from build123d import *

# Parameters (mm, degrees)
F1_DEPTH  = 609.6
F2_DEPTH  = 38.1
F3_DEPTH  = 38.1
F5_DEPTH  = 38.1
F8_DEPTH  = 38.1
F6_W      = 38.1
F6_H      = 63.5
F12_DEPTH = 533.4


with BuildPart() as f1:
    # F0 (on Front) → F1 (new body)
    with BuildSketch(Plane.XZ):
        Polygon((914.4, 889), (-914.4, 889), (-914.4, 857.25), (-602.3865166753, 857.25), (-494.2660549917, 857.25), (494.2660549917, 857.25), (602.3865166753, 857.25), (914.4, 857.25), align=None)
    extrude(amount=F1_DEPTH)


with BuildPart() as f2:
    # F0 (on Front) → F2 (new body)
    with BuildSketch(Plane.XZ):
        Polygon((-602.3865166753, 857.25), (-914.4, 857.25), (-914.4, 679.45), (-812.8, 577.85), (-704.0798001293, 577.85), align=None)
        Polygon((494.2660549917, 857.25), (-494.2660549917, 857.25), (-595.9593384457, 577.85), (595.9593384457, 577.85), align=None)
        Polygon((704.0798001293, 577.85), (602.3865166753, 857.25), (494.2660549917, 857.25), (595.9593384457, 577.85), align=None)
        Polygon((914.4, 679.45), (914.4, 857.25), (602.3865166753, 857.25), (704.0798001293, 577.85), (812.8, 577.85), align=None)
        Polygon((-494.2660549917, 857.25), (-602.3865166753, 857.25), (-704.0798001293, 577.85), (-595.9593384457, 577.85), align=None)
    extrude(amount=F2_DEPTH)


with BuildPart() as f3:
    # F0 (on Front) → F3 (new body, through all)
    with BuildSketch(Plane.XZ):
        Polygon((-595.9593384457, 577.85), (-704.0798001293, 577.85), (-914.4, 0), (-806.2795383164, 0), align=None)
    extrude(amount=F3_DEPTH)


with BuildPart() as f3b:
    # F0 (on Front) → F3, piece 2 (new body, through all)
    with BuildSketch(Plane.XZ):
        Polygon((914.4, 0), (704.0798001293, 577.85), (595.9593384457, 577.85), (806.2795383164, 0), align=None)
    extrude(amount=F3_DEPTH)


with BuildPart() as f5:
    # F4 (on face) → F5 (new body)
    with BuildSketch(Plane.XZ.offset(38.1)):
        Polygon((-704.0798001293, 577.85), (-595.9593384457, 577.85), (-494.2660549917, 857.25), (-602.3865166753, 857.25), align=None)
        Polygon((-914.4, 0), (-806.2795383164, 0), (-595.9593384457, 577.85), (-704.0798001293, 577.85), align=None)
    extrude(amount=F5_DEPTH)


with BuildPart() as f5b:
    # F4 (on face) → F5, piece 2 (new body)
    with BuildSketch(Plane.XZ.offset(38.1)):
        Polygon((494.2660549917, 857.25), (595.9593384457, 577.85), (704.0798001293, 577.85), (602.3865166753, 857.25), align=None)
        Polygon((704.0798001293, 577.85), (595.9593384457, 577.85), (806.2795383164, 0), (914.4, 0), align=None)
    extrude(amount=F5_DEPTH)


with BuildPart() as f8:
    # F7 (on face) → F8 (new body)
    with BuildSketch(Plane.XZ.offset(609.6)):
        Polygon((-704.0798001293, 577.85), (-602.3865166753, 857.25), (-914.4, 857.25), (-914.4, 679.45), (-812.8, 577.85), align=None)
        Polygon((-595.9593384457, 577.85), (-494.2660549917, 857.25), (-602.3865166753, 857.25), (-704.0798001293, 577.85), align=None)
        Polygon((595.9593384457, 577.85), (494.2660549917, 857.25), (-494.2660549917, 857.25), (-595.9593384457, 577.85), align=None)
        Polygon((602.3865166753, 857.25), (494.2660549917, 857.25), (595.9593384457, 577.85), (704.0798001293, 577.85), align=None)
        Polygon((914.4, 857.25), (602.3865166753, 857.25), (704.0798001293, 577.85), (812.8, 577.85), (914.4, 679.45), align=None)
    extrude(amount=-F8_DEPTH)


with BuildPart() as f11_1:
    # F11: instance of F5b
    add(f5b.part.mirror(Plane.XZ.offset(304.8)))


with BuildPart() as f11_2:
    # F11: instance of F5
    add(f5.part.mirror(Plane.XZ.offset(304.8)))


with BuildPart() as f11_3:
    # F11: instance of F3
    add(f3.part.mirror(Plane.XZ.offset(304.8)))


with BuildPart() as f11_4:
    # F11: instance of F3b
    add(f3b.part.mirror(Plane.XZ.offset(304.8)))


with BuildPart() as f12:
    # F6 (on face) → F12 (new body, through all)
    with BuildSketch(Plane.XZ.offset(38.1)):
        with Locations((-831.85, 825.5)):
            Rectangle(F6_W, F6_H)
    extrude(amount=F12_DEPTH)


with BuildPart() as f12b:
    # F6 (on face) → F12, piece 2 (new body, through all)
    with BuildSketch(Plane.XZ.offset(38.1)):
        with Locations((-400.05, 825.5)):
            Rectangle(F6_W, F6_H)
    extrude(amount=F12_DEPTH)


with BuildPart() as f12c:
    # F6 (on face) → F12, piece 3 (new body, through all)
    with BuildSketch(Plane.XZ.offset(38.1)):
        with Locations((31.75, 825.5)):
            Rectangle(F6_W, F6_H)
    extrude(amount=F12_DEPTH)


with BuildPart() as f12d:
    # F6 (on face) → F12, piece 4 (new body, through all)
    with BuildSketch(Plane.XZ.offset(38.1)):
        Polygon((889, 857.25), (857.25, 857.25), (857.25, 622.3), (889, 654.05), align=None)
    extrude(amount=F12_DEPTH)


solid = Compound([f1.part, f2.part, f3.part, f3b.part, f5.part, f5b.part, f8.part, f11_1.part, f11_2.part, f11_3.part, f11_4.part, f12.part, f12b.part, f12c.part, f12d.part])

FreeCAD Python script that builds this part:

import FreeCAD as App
import Part
import Sketcher
Q = App.Units.Quantity

doc = App.newDocument("Part")
body = doc.addObject("PartDesign::Body", "Body")

sketch1 = body.newObject("Sketcher::SketchObject", "Sketch")
sketch1.AttachmentSupport = (doc.getObject("XZ_Plane"), [""])
sketch1.MapMode = "FlatFace"
sketch1.addGeometry(Part.LineSegment(App.Vector(914, 889, 0), App.Vector(-914, 889, 0)), False)
sketch1.addGeometry(Part.LineSegment(App.Vector(-914, 889, 0), App.Vector(-914, 857, 0)), False)
sketch1.addGeometry(Part.LineSegment(App.Vector(-914, 857, 0), App.Vector(914, 857, 0)), False)
sketch1.addGeometry(Part.LineSegment(App.Vector(914, 857, 0), App.Vector(914, 889, 0)), False)
sketch1.addConstraint(Sketcher.Constraint("Coincident", 0, 2, 1, 1))
sketch1.addConstraint(Sketcher.Constraint("Coincident", 1, 2, 2, 1))
sketch1.addConstraint(Sketcher.Constraint("Coincident", 2, 2, 3, 1))
sketch1.addConstraint(Sketcher.Constraint("Coincident", 3, 2, 0, 1))
sketch1.addConstraint(Sketcher.Constraint("Horizontal", 0))
sketch1.addConstraint(Sketcher.Constraint("Vertical", 1))
sketch1.addConstraint(Sketcher.Constraint("Horizontal", 2))
sketch1.addConstraint(Sketcher.Constraint("Vertical", 3))
sketch1.addConstraint(Sketcher.Constraint("DistanceX", 0, 2, 0, 1, Q("72 in")))
sketch1.addConstraint(Sketcher.Constraint("DistanceX", 0, 2, -1, 1, Q("36 in")))
sketch1.addConstraint(Sketcher.Constraint("DistanceY", -1, 1, 0, 2, Q("35 in")))
sketch1.addConstraint(Sketcher.Constraint("DistanceY", 1, 2, 1, 1, Q("1.25 in")))
pad1 = body.newObject("PartDesign::Pad", "Pad")
pad1.Profile = sketch1
pad1.Length = Q("24 in")
body2 = doc.addObject("PartDesign::Body", "Body001")

sketch2 = body2.newObject("Sketcher::SketchObject", "Sketch001")
sketch2.AttachmentSupport = (doc.getObject("XZ_Plane001"), [""])
sketch2.MapMode = "FlatFace"
sketch2.addGeometry(Part.LineSegment(App.Vector(-914, 857, 0), App.Vector(-914, 679, 0)), False)
sketch2.addGeometry(Part.LineSegment(App.Vector(-914, 679, 0), App.Vector(-813, 578, 0)), False)
sketch2.addGeometry(Part.LineSegment(App.Vector(-813, 578, 0), App.Vector(813, 578, 0)), False)
sketch2.addGeometry(Part.LineSegment(App.Vector(813, 578, 0), App.Vector(914, 679, 0)), False)
sketch2.addGeometry(Part.LineSegment(App.Vector(914, 679, 0), App.Vector(914, 857, 0)), False)
sketch2.addGeometry(Part.LineSegment(App.Vector(914, 857, 0), App.Vector(-914, 857, 0)), False)
sketch2.addConstraint(Sketcher.Constraint("Coincident", 0, 2, 1, 1))
sketch2.addConstraint(Sketcher.Constraint("Coincident", 1, 2, 2, 1))
sketch2.addConstraint(Sketcher.Constraint("Coincident", 2, 2, 3, 1))
sketch2.addConstraint(Sketcher.Constraint("Coincident", 3, 2, 4, 1))
sketch2.addConstraint(Sketcher.Constraint("Coincident", 4, 2, 5, 1))
sketch2.addConstraint(Sketcher.Constraint("Coincident", 5, 2, 0, 1))
sketch2.addConstraint(Sketcher.Constraint("Vertical", 0))
sketch2.addConstraint(Sketcher.Constraint("Horizontal", 2))
sketch2.addConstraint(Sketcher.Constraint("Vertical", 4))
sketch2.addConstraint(Sketcher.Constraint("Horizontal", 5))
sketch2.addConstraint(Sketcher.Constraint("Symmetric", 0, 2, 3, 2, -2))
sketch2.addConstraint(Sketcher.Constraint("Perpendicular", 1, 3))
sketch2.addConstraint(Sketcher.Constraint("Equal", 1, 3))
sketch2.addConstraint(Sketcher.Constraint("DistanceX", 2, 1, 2, 2, Q("64 in")))
sketch2.addConstraint(Sketcher.Constraint("DistanceX", 5, 2, 5, 1, Q("72 in")))
sketch2.addConstraint(Sketcher.Constraint("DistanceY", 0, 2, 0, 1, Q("7 in")))
sketch2.addConstraint(Sketcher.Constraint("DistanceY", -1, 1, 0, 2, Q("26.75 in")))
pad2 = body2.newObject("PartDesign::Pad", "Pad001")
pad2.Profile = sketch2
pad2.Length = Q("1.5 in")
body3 = doc.addObject("PartDesign::Body", "Body002")

sketch3 = body3.newObject("Sketcher::SketchObject", "Sketch002")
sketch3.AttachmentSupport = (doc.getObject("XZ_Plane002"), [""])
sketch3.MapMode = "FlatFace"
sketch3.addGeometry(Part.LineSegment(App.Vector(-596, 578, 0), App.Vector(-704, 578, 0)), False)
sketch3.addGeometry(Part.LineSegment(App.Vector(-704, 578, 0), App.Vector(-914, 0, 0)), False)
sketch3.addGeometry(Part.LineSegment(App.Vector(-914, 0, 0), App.Vector(-806, 0, 0)), False)
sketch3.addGeometry(Part.LineSegment(App.Vector(-806, 0, 0), App.Vector(-596, 578, 0)), False)
sketch3.addConstraint(Sketcher.Constraint("Coincident", 0, 2, 1, 1))
sketch3.addConstraint(Sketcher.Constraint("Coincident", 1, 2, 2, 1))
sketch3.addConstraint(Sketcher.Constraint("Coincident", 2, 2, 3, 1))
sketch3.addConstraint(Sketcher.Constraint("Coincident", 3, 2, 0, 1))
sketch3.addConstraint(Sketcher.Constraint("Horizontal", 0))
sketch3.addConstraint(Sketcher.Constraint("Horizontal", 2))
sketch3.addConstraint(Sketcher.Constraint("PointOnObject", 1, 2, -1))
sketch3.addConstraint(Sketcher.Constraint("Parallel", 1, 3))
sketch3.addConstraint(Sketcher.Constraint("DistanceX", 1, 2, -1, 1, Q("36 in")))
sketch3.addConstraint(Sketcher.Constraint("Angle", 1, Q("-110 deg")))
sketch3.addConstraint(Sketcher.Constraint("DistanceY", -1, 1, 0, 2, Q("22.75 in")))
sketch3.addConstraint(Sketcher.Constraint("DistanceX", 0, 2, 0, 1, 108.120462))
pad3 = body3.newObject("PartDesign::Pad", "Pad002")
pad3.Profile = sketch3
pad3.Length = Q("1.5 in")
body4 = doc.addObject("PartDesign::Body", "Body003")

sketch4 = body4.newObject("Sketcher::SketchObject", "Sketch003")
sketch4.AttachmentSupport = (doc.getObject("XZ_Plane003"), [""])
sketch4.MapMode = "FlatFace"
sketch4.addGeometry(Part.LineSegment(App.Vector(914, 0, 0), App.Vector(704, 578, 0)), False)
sketch4.addGeometry(Part.LineSegment(App.Vector(704, 578, 0), App.Vector(596, 578, 0)), False)
sketch4.addGeometry(Part.LineSegment(App.Vector(596, 578, 0), App.Vector(806, 0, 0)), False)
sketch4.addGeometry(Part.LineSegment(App.Vector(806, 0, 0), App.Vector(914, 0, 0)), False)
sketch4.addConstraint(Sketcher.Constraint("Coincident", 0, 2, 1, 1))
sketch4.addConstraint(Sketcher.Constraint("Coincident", 1, 2, 2, 1))
sketch4.addConstraint(Sketcher.Constraint("Coincident", 2, 2, 3, 1))
sketch4.addConstraint(Sketcher.Constraint("Coincident", 3, 2, 0, 1))
sketch4.addConstraint(Sketcher.Constraint("Horizontal", 1))
sketch4.addConstraint(Sketcher.Constraint("Horizontal", 3))
sketch4.addConstraint(Sketcher.Constraint("PointOnObject", 2, 2, -1))
sketch4.addConstraint(Sketcher.Constraint("Parallel", 0, 2))
sketch4.addConstraint(Sketcher.Constraint("DistanceX", -1, 1, 3, 2, Q("36 in")))
sketch4.addConstraint(Sketcher.Constraint("Angle", 0, Q("110 deg")))
sketch4.addConstraint(Sketcher.Constraint("DistanceY", -1, 1, 0, 2, Q("22.75 in")))
sketch4.addConstraint(Sketcher.Constraint("DistanceX", 1, 2, 1, 1, 108.120462))
pad4 = body4.newObject("PartDesign::Pad", "Pad003")
pad4.Profile = sketch4
pad4.Length = Q("1.5 in")
body5 = doc.addObject("PartDesign::Body", "Body004")

sketch5 = body5.newObject("Sketcher::SketchObject", "Sketch004")
sketch5.AttachmentSupport = (doc.getObject("XZ_Plane004"), [""])
sketch5.MapMode = "FlatFace"
sketch5.AttachmentOffset = App.Placement(App.Vector(0, 0, 1.5 * 25.4), App.Rotation())
sketch5.addGeometry(Part.LineSegment(App.Vector(-494, 857, 0), App.Vector(-602, 857, 0)), False)
sketch5.addGeometry(Part.LineSegment(App.Vector(-602, 857, 0), App.Vector(-914, 0, 0)), False)
sketch5.addGeometry(Part.LineSegment(App.Vector(-914, 0, 0), App.Vector(-806, 0, 0)), False)
sketch5.addGeometry(Part.LineSegment(App.Vector(-806, 0, 0), App.Vector(-494, 857, 0)), False)
sketch5.addConstraint(Sketcher.Constraint("Coincident", 0, 2, 1, 1))
sketch5.addConstraint(Sketcher.Constraint("Coincident", 1, 2, 2, 1))
sketch5.addConstraint(Sketcher.Constraint("Coincident", 2, 2, 3, 1))
sketch5.addConstraint(Sketcher.Constraint("Coincident", 3, 2, 0, 1))
sketch5.addConstraint(Sketcher.Constraint("Horizontal", 0))
sketch5.addConstraint(Sketcher.Constraint("Horizontal", 2))
sketch5.addConstraint(Sketcher.Constraint("PointOnObject", 1, 2, -1))
sketch5.addConstraint(Sketcher.Constraint("Parallel", 1, 3))
sketch5.addConstraint(Sketcher.Constraint("DistanceX", 1, 2, -1, 1, Q("36 in")))
sketch5.addConstraint(Sketcher.Constraint("Angle", 1, Q("-110 deg")))
sketch5.addConstraint(Sketcher.Constraint("DistanceY", -1, 1, 0, 2, Q("33.75 in")))
sketch5.addConstraint(Sketcher.Constraint("DistanceX", 0, 2, 0, 1, 108.120462))
pad5 = body5.newObject("PartDesign::Pad", "Pad004")
pad5.Profile = sketch5
pad5.Length = Q("1.5 in")
body6 = doc.addObject("PartDesign::Body", "Body005")

sketch6 = body6.newObject("Sketcher::SketchObject", "Sketch005")
sketch6.AttachmentSupport = (doc.getObject("XZ_Plane005"), [""])
sketch6.MapMode = "FlatFace"
sketch6.AttachmentOffset = App.Placement(App.Vector(0, 0, 1.5 * 25.4), App.Rotation())
sketch6.addGeometry(Part.LineSegment(App.Vector(494, 857, 0), App.Vector(806, 0, 0)), False)
sketch6.addGeometry(Part.LineSegment(App.Vector(806, 0, 0), App.Vector(914, 0, 0)), False)
sketch6.addGeometry(Part.LineSegment(App.Vector(914, 0, 0), App.Vector(602, 857, 0)), False)
sketch6.addGeometry(Part.LineSegment(App.Vector(602, 857, 0), App.Vector(494, 857, 0)), False)
sketch6.addConstraint(Sketcher.Constraint("Coincident", 0, 2, 1, 1))
sketch6.addConstraint(Sketcher.Constraint("Coincident", 1, 2, 2, 1))
sketch6.addConstraint(Sketcher.Constraint("Coincident", 2, 2, 3, 1))
sketch6.addConstraint(Sketcher.Constraint("Coincident", 3, 2, 0, 1))
sketch6.addConstraint(Sketcher.Constraint("Horizontal", 1))
sketch6.addConstraint(Sketcher.Constraint("Horizontal", 3))
sketch6.addConstraint(Sketcher.Constraint("PointOnObject", 0, 2, -1))
sketch6.addConstraint(Sketcher.Constraint("Parallel", 0, 2))
sketch6.addConstraint(Sketcher.Constraint("DistanceX", -1, 1, 1, 2, Q("36 in")))
sketch6.addConstraint(Sketcher.Constraint("Angle", 0, Q("-70 deg")))
sketch6.addConstraint(Sketcher.Constraint("DistanceY", -1, 1, 2, 2, Q("33.75 in")))
sketch6.addConstraint(Sketcher.Constraint("DistanceX", 1, 1, 1, 2, 108.120462))
pad6 = body6.newObject("PartDesign::Pad", "Pad005")
pad6.Profile = sketch6
pad6.Length = Q("1.5 in")
body7 = doc.addObject("PartDesign::Body", "Body006")

sketch7 = body7.newObject("Sketcher::SketchObject", "Sketch006")
sketch7.AttachmentSupport = (doc.getObject("XZ_Plane006"), [""])
sketch7.MapMode = "FlatFace"
sketch7.AttachmentOffset = App.Placement(App.Vector(0, 0, 24 * 25.4), App.Rotation())
sketch7.addGeometry(Part.LineSegment(App.Vector(-914, 857, 0), App.Vector(-914, 679, 0)), False)
sketch7.addGeometry(Part.LineSegment(App.Vector(-914, 679, 0), App.Vector(-813, 578, 0)), False)
sketch7.addGeometry(Part.LineSegment(App.Vector(-813, 578, 0), App.Vector(813, 578, 0)), False)
sketch7.addGeometry(Part.LineSegment(App.Vector(813, 578, 0), App.Vector(914, 679, 0)), False)
sketch7.addGeometry(Part.LineSegment(App.Vector(914, 679, 0), App.Vector(914, 857, 0)), False)
sketch7.addGeometry(Part.LineSegment(App.Vector(914, 857, 0), App.Vector(-914, 857, 0)), False)
sketch7.addConstraint(Sketcher.Constraint("Coincident", 0, 2, 1, 1))
sketch7.addConstraint(Sketcher.Constraint("Coincident", 1, 2, 2, 1))
sketch7.addConstraint(Sketcher.Constraint("Coincident", 2, 2, 3, 1))
sketch7.addConstraint(Sketcher.Constraint("Coincident", 3, 2, 4, 1))
sketch7.addConstraint(Sketcher.Constraint("Coincident", 4, 2, 5, 1))
sketch7.addConstraint(Sketcher.Constraint("Coincident", 5, 2, 0, 1))
sketch7.addConstraint(Sketcher.Constraint("Vertical", 0))
sketch7.addConstraint(Sketcher.Constraint("Horizontal", 2))
sketch7.addConstraint(Sketcher.Constraint("Vertical", 4))
sketch7.addConstraint(Sketcher.Constraint("Horizontal", 5))
sketch7.addConstraint(Sketcher.Constraint("Symmetric", 0, 2, 3, 2, -2))
sketch7.addConstraint(Sketcher.Constraint("Perpendicular", 1, 3))
sketch7.addConstraint(Sketcher.Constraint("Equal", 1, 3))
sketch7.addConstraint(Sketcher.Constraint("DistanceX", 2, 1, 2, 2, Q("64 in")))
sketch7.addConstraint(Sketcher.Constraint("DistanceX", 5, 2, 5, 1, Q("72 in")))
sketch7.addConstraint(Sketcher.Constraint("DistanceY", 0, 2, 0, 1, Q("7 in")))
sketch7.addConstraint(Sketcher.Constraint("DistanceY", -1, 1, 0, 2, Q("26.75 in")))
pad7 = body7.newObject("PartDesign::Pad", "Pad006")
pad7.Profile = sketch7
pad7.Length = Q("1.5 in")
pad7.Reversed = True
body8 = doc.addObject("PartDesign::Body", "Body007")
doc.recompute()

mirroring = doc.addObject("Part::Mirroring", "Mirroring")
mirroring.Source = body6
mirroring.Base = App.Vector(0, -304.8, 0)
mirroring.Normal = App.Vector(0, -1, 0)
body8.BaseFeature = mirroring
doc.recompute()
body9 = doc.addObject("PartDesign::Body", "Body008")
doc.recompute()

mirroring2 = doc.addObject("Part::Mirroring", "Mirroring001")
mirroring2.Source = body5
mirroring2.Base = App.Vector(0, -304.8, 0)
mirroring2.Normal = App.Vector(0, -1, 0)
body9.BaseFeature = mirroring2
doc.recompute()
body10 = doc.addObject("PartDesign::Body", "Body009")
doc.recompute()

mirroring3 = doc.addObject("Part::Mirroring", "Mirroring002")
mirroring3.Source = body3
mirroring3.Base = App.Vector(0, -304.8, 0)
mirroring3.Normal = App.Vector(0, -1, 0)
body10.BaseFeature = mirroring3
doc.recompute()
body11 = doc.addObject("PartDesign::Body", "Body010")
doc.recompute()

mirroring4 = doc.addObject("Part::Mirroring", "Mirroring003")
mirroring4.Source = body4
mirroring4.Base = App.Vector(0, -304.8, 0)
mirroring4.Normal = App.Vector(0, -1, 0)
body11.BaseFeature = mirroring4
doc.recompute()
body12 = doc.addObject("PartDesign::Body", "Body011")

sketch8 = body12.newObject("Sketcher::SketchObject", "Sketch007")
sketch8.AttachmentSupport = (doc.getObject("XZ_Plane011"), [""])
sketch8.MapMode = "FlatFace"
sketch8.AttachmentOffset = App.Placement(App.Vector(0, 0, 1.5 * 25.4), App.Rotation())
sketch8.addGeometry(Part.LineSegment(App.Vector(-851, 857, 0), App.Vector(-851, 794, 0)), False)
sketch8.addGeometry(Part.LineSegment(App.Vector(-851, 794, 0), App.Vector(-813, 794, 0)), False)
sketch8.addGeometry(Part.LineSegment(App.Vector(-813, 794, 0), App.Vector(-813, 857, 0)), False)
sketch8.addGeometry(Part.LineSegment(App.Vector(-813, 857, 0), App.Vector(-851, 857, 0)), False)
sketch8.addConstraint(Sketcher.Constraint("Coincident", 0, 2, 1, 1))
sketch8.addConstraint(Sketcher.Constraint("Coincident", 1, 2, 2, 1))
sketch8.addConstraint(Sketcher.Constraint("Coincident", 2, 2, 3, 1))
sketch8.addConstraint(Sketcher.Constraint("Coincident", 3, 2, 0, 1))
sketch8.addConstraint(Sketcher.Constraint("Vertical", 0))
sketch8.addConstraint(Sketcher.Constraint("Horizontal", 1))
sketch8.addConstraint(Sketcher.Constraint("Vertical", 2))
sketch8.addConstraint(Sketcher.Constraint("Horizontal", 3))
sketch8.addConstraint(Sketcher.Constraint("DistanceX", 1, 1, 1, 2, Q("1.5 in")))
sketch8.addConstraint(Sketcher.Constraint("DistanceY", 0, 2, 0, 1, Q("2.5 in")))
sketch8.addConstraint(Sketcher.Constraint("DistanceX", 1, 2, -1, 1, Q("32 in")))
sketch8.addConstraint(Sketcher.Constraint("DistanceY", -1, 1, 0, 2, Q("31.25 in")))
pad8 = body12.newObject("PartDesign::Pad", "Pad007")
pad8.Profile = sketch8
pad8.Length = Q("21 in")
body13 = doc.addObject("PartDesign::Body", "Body012")

sketch9 = body13.newObject("Sketcher::SketchObject", "Sketch008")
sketch9.AttachmentSupport = (doc.getObject("XZ_Plane012"), [""])
sketch9.MapMode = "FlatFace"
sketch9.AttachmentOffset = App.Placement(App.Vector(0, 0, 1.5 * 25.4), App.Rotation())
sketch9.addGeometry(Part.LineSegment(App.Vector(-419, 857, 0), App.Vector(-419, 794, 0)), False)
sketch9.addGeometry(Part.LineSegment(App.Vector(-419, 794, 0), App.Vector(-381, 794, 0)), False)
sketch9.addGeometry(Part.LineSegment(App.Vector(-381, 794, 0), App.Vector(-381, 857, 0)), False)
sketch9.addGeometry(Part.LineSegment(App.Vector(-381, 857, 0), App.Vector(-419, 857, 0)), False)
sketch9.addConstraint(Sketcher.Constraint("Coincident", 0, 2, 1, 1))
sketch9.addConstraint(Sketcher.Constraint("Coincident", 1, 2, 2, 1))
sketch9.addConstraint(Sketcher.Constraint("Coincident", 2, 2, 3, 1))
sketch9.addConstraint(Sketcher.Constraint("Coincident", 3, 2, 0, 1))
sketch9.addConstraint(Sketcher.Constraint("Vertical", 0))
sketch9.addConstraint(Sketcher.Constraint("Horizontal", 1))
sketch9.addConstraint(Sketcher.Constraint("Vertical", 2))
sketch9.addConstraint(Sketcher.Constraint("Horizontal", 3))
sketch9.addConstraint(Sketcher.Constraint("DistanceX", 1, 1, 1, 2, Q("1.5 in")))
sketch9.addConstraint(Sketcher.Constraint("DistanceY", 0, 2, 0, 1, Q("2.5 in")))
sketch9.addConstraint(Sketcher.Constraint("DistanceX", 1, 2, -1, 1, Q("15 in")))
sketch9.addConstraint(Sketcher.Constraint("DistanceY", -1, 1, 0, 2, Q("31.25 in")))
pad9 = body13.newObject("PartDesign::Pad", "Pad008")
pad9.Profile = sketch9
pad9.Length = Q("21 in")
body14 = doc.addObject("PartDesign::Body", "Body013")

sketch10 = body14.newObject("Sketcher::SketchObject", "Sketch009")
sketch10.AttachmentSupport = (doc.getObject("XZ_Plane013"), [""])
sketch10.MapMode = "FlatFace"
sketch10.AttachmentOffset = App.Placement(App.Vector(0, 0, 1.5 * 25.4), App.Rotation())
sketch10.addGeometry(Part.LineSegment(App.Vector(13, 857, 0), App.Vector(13, 794, 0)), False)
sketch10.addGeometry(Part.LineSegment(App.Vector(13, 794, 0), App.Vector(51, 794, 0)), False)
sketch10.addGeometry(Part.LineSegment(App.Vector(51, 794, 0), App.Vector(51, 857, 0)), False)
sketch10.addGeometry(Part.LineSegment(App.Vector(51, 857, 0), App.Vector(13, 857, 0)), False)
sketch10.addConstraint(Sketcher.Constraint("Coincident", 0, 2, 1, 1))
sketch10.addConstraint(Sketcher.Constraint("Coincident", 1, 2, 2, 1))
sketch10.addConstraint(Sketcher.Constraint("Coincident", 2, 2, 3, 1))
sketch10.addConstraint(Sketcher.Constraint("Coincident", 3, 2, 0, 1))
sketch10.addConstraint(Sketcher.Constraint("Vertical", 0))
sketch10.addConstraint(Sketcher.Constraint("Horizontal", 1))
sketch10.addConstraint(Sketcher.Constraint("Vertical", 2))
sketch10.addConstraint(Sketcher.Constraint("Horizontal", 3))
sketch10.addConstraint(Sketcher.Constraint("DistanceX", 1, 1, 1, 2, Q("1.5 in")))
sketch10.addConstraint(Sketcher.Constraint("DistanceY", 0, 2, 0, 1, Q("2.5 in")))
sketch10.addConstraint(Sketcher.Constraint("DistanceX", -1, 1, 1, 2, Q("2 in")))
sketch10.addConstraint(Sketcher.Constraint("DistanceY", -1, 1, 0, 2, Q("31.25 in")))
pad10 = body14.newObject("PartDesign::Pad", "Pad009")
pad10.Profile = sketch10
pad10.Length = Q("21 in")
body15 = doc.addObject("PartDesign::Body", "Body014")

sketch11 = body15.newObject("Sketcher::SketchObject", "Sketch010")
sketch11.AttachmentSupport = (doc.getObject("XZ_Plane014"), [""])
sketch11.MapMode = "FlatFace"
sketch11.AttachmentOffset = App.Placement(App.Vector(0, 0, 1.5 * 25.4), App.Rotation())
sketch11.addGeometry(Part.LineSegment(App.Vector(889, 857, 0), App.Vector(857, 857, 0)), False)
sketch11.addGeometry(Part.LineSegment(App.Vector(857, 857, 0), App.Vector(857, 622, 0)), False)
sketch11.addGeometry(Part.LineSegment(App.Vector(857, 622, 0), App.Vector(889, 654, 0)), False)
sketch11.addGeometry(Part.LineSegment(App.Vector(889, 654, 0), App.Vector(889, 857, 0)), False)
sketch11.addConstraint(Sketcher.Constraint("Coincident", 0, 2, 1, 1))
sketch11.addConstraint(Sketcher.Constraint("Coincident", 1, 2, 2, 1))
sketch11.addConstraint(Sketcher.Constraint("Coincident", 2, 2, 3, 1))
sketch11.addConstraint(Sketcher.Constraint("Coincident", 3, 2, 0, 1))
sketch11.addConstraint(Sketcher.Constraint("Horizontal", 0))
sketch11.addConstraint(Sketcher.Constraint("Vertical", 1))
sketch11.addConstraint(Sketcher.Constraint("Vertical", 3))
sketch11.addConstraint(Sketcher.Constraint("DistanceY", 3, 1, 3, 2, Q("8 in")))
sketch11.addConstraint(Sketcher.Constraint("DistanceX", -1, 1, 2, 2, Q("35 in")))
sketch11.addConstraint(Sketcher.Constraint("Angle", 2, Q("45 deg")))
sketch11.addConstraint(Sketcher.Constraint("DistanceX", 0, 2, 0, 1, Q("1.25 in")))
sketch11.addConstraint(Sketcher.Constraint("DistanceY", -1, 1, 1, 2, Q("24.5 in")))
pad11 = body15.newObject("PartDesign::Pad", "Pad010")
pad11.Profile = sketch11
pad11.Length = Q("21 in")
mirroring.Visibility = False
mirroring2.Visibility = False
mirroring3.Visibility = False
mirroring4.Visibility = False

doc.recompute()
